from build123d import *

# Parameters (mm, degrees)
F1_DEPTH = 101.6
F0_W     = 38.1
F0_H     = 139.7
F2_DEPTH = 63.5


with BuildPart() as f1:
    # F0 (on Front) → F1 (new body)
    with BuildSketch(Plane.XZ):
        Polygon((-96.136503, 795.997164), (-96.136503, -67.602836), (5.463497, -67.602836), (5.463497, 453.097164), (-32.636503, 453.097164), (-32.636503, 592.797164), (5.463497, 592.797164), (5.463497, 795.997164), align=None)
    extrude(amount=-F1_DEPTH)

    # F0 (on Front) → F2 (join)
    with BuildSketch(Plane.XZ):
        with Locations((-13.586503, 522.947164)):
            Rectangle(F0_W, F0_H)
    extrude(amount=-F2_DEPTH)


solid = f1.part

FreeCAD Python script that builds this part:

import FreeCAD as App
import Part
import Sketcher
from FreeCAD import Vector
Q = App.Units.Quantity


def add_polygon(sketch, points):
    """Adds a closed chain of lines whose ends are joined by coincident constraints."""
    first, n = sketch.GeometryCount, len(points)
    for a, b in zip(points, points[1:] + points[:1]):
        sketch.addGeometry(Part.LineSegment(App.Vector(*a, 0), App.Vector(*b, 0)), False)
    for i in range(n):
        sketch.addConstraint(Sketcher.Constraint("Coincident", first + i, 2, first + (i + 1) % n, 1))

doc = App.newDocument("Part")
body = doc.addObject("PartDesign::Body", "Body")

# Sketch on XZ plane
sketch1 = doc.addObject("Sketcher::SketchObject", "Sketch")
body.addObject(sketch1)
sketch1.AttachmentSupport = (doc.XZ_Plane, [""])
sketch1.MapMode = "FlatFace"
add_polygon(sketch1, [(-96, 796), (-96, -68), (5, -68), (5, 453), (-33, 453), (-33, 593), (5, 593), (5, 796)])  # lines 0-7
sketch1.addConstraint([
    Sketcher.Constraint("Vertical", 0),
    Sketcher.Constraint("Horizontal", 1),
    Sketcher.Constraint("Vertical", 2),
    Sketcher.Constraint("Horizontal", 3),
    Sketcher.Constraint("Vertical", 4),
    Sketcher.Constraint("Horizontal", 5),
    Sketcher.Constraint("Vertical", 6),
    Sketcher.Constraint("Horizontal", 7),
    Sketcher.Constraint("Vertical", 2, 2, 5, 2),
    Sketcher.Constraint("DistanceX", 1, 1, 1, 2, Q("4 in")),
    Sketcher.Constraint("DistanceY", 0, 2, 0, 1, Q("34 in")),
    Sketcher.Constraint("DistanceY", 6, 1, 6, 2, Q("8 in")),
    Sketcher.Constraint("DistanceX", 3, 2, 3, 1, Q("1.5 in")),
    Sketcher.Constraint("DistanceY", 2, 1, 2, 2, Q("20.5 in")),
    Sketcher.Constraint("DistanceX", 0, 2, -1, 1, Q("96.136503 mm")),
    Sketcher.Constraint("DistanceY", 0, 2, -1, 1, Q("67.602836 mm")),
])
pad1 = doc.addObject("PartDesign::Pad", "Pad")
body.addObject(pad1)
pad1.Profile = sketch1
pad1.Length = Q("4 in")
pad1.Reversed = True

# Sketch on XZ plane
sketch2 = doc.addObject("Sketcher::SketchObject", "Sketch001")
body.addObject(sketch2)
sketch2.AttachmentSupport = (doc.XZ_Plane, [""])
sketch2.MapMode = "FlatFace"
add_polygon(sketch2, [(-33, 593), (-33, 453), (5, 453), (5, 593)])  # lines 0-3
sketch2.addConstraint([
    Sketcher.Constraint("Vertical", 0),
    Sketcher.Constraint("Horizontal", 1),
    Sketcher.Constraint("Vertical", 2),
    Sketcher.Constraint("Horizontal", 3),
    Sketcher.Constraint("DistanceX", 1, 1, 1, 2, Q("1.5 in")),
    Sketcher.Constraint("DistanceY", 0, 2, 0, 1, Q("5.5 in")),
    Sketcher.Constraint("DistanceX", 0, 2, -1, 1, Q("32.636503 mm")),
    Sketcher.Constraint("DistanceY", -1, 1, 0, 2, Q("453.097164 mm")),
])
pad2 = doc.addObject("PartDesign::Pad", "Pad001")
body.addObject(pad2)
pad2.Profile = sketch2
pad2.Length = Q("2.5 in")
pad2.Reversed = True

doc.recompute()
